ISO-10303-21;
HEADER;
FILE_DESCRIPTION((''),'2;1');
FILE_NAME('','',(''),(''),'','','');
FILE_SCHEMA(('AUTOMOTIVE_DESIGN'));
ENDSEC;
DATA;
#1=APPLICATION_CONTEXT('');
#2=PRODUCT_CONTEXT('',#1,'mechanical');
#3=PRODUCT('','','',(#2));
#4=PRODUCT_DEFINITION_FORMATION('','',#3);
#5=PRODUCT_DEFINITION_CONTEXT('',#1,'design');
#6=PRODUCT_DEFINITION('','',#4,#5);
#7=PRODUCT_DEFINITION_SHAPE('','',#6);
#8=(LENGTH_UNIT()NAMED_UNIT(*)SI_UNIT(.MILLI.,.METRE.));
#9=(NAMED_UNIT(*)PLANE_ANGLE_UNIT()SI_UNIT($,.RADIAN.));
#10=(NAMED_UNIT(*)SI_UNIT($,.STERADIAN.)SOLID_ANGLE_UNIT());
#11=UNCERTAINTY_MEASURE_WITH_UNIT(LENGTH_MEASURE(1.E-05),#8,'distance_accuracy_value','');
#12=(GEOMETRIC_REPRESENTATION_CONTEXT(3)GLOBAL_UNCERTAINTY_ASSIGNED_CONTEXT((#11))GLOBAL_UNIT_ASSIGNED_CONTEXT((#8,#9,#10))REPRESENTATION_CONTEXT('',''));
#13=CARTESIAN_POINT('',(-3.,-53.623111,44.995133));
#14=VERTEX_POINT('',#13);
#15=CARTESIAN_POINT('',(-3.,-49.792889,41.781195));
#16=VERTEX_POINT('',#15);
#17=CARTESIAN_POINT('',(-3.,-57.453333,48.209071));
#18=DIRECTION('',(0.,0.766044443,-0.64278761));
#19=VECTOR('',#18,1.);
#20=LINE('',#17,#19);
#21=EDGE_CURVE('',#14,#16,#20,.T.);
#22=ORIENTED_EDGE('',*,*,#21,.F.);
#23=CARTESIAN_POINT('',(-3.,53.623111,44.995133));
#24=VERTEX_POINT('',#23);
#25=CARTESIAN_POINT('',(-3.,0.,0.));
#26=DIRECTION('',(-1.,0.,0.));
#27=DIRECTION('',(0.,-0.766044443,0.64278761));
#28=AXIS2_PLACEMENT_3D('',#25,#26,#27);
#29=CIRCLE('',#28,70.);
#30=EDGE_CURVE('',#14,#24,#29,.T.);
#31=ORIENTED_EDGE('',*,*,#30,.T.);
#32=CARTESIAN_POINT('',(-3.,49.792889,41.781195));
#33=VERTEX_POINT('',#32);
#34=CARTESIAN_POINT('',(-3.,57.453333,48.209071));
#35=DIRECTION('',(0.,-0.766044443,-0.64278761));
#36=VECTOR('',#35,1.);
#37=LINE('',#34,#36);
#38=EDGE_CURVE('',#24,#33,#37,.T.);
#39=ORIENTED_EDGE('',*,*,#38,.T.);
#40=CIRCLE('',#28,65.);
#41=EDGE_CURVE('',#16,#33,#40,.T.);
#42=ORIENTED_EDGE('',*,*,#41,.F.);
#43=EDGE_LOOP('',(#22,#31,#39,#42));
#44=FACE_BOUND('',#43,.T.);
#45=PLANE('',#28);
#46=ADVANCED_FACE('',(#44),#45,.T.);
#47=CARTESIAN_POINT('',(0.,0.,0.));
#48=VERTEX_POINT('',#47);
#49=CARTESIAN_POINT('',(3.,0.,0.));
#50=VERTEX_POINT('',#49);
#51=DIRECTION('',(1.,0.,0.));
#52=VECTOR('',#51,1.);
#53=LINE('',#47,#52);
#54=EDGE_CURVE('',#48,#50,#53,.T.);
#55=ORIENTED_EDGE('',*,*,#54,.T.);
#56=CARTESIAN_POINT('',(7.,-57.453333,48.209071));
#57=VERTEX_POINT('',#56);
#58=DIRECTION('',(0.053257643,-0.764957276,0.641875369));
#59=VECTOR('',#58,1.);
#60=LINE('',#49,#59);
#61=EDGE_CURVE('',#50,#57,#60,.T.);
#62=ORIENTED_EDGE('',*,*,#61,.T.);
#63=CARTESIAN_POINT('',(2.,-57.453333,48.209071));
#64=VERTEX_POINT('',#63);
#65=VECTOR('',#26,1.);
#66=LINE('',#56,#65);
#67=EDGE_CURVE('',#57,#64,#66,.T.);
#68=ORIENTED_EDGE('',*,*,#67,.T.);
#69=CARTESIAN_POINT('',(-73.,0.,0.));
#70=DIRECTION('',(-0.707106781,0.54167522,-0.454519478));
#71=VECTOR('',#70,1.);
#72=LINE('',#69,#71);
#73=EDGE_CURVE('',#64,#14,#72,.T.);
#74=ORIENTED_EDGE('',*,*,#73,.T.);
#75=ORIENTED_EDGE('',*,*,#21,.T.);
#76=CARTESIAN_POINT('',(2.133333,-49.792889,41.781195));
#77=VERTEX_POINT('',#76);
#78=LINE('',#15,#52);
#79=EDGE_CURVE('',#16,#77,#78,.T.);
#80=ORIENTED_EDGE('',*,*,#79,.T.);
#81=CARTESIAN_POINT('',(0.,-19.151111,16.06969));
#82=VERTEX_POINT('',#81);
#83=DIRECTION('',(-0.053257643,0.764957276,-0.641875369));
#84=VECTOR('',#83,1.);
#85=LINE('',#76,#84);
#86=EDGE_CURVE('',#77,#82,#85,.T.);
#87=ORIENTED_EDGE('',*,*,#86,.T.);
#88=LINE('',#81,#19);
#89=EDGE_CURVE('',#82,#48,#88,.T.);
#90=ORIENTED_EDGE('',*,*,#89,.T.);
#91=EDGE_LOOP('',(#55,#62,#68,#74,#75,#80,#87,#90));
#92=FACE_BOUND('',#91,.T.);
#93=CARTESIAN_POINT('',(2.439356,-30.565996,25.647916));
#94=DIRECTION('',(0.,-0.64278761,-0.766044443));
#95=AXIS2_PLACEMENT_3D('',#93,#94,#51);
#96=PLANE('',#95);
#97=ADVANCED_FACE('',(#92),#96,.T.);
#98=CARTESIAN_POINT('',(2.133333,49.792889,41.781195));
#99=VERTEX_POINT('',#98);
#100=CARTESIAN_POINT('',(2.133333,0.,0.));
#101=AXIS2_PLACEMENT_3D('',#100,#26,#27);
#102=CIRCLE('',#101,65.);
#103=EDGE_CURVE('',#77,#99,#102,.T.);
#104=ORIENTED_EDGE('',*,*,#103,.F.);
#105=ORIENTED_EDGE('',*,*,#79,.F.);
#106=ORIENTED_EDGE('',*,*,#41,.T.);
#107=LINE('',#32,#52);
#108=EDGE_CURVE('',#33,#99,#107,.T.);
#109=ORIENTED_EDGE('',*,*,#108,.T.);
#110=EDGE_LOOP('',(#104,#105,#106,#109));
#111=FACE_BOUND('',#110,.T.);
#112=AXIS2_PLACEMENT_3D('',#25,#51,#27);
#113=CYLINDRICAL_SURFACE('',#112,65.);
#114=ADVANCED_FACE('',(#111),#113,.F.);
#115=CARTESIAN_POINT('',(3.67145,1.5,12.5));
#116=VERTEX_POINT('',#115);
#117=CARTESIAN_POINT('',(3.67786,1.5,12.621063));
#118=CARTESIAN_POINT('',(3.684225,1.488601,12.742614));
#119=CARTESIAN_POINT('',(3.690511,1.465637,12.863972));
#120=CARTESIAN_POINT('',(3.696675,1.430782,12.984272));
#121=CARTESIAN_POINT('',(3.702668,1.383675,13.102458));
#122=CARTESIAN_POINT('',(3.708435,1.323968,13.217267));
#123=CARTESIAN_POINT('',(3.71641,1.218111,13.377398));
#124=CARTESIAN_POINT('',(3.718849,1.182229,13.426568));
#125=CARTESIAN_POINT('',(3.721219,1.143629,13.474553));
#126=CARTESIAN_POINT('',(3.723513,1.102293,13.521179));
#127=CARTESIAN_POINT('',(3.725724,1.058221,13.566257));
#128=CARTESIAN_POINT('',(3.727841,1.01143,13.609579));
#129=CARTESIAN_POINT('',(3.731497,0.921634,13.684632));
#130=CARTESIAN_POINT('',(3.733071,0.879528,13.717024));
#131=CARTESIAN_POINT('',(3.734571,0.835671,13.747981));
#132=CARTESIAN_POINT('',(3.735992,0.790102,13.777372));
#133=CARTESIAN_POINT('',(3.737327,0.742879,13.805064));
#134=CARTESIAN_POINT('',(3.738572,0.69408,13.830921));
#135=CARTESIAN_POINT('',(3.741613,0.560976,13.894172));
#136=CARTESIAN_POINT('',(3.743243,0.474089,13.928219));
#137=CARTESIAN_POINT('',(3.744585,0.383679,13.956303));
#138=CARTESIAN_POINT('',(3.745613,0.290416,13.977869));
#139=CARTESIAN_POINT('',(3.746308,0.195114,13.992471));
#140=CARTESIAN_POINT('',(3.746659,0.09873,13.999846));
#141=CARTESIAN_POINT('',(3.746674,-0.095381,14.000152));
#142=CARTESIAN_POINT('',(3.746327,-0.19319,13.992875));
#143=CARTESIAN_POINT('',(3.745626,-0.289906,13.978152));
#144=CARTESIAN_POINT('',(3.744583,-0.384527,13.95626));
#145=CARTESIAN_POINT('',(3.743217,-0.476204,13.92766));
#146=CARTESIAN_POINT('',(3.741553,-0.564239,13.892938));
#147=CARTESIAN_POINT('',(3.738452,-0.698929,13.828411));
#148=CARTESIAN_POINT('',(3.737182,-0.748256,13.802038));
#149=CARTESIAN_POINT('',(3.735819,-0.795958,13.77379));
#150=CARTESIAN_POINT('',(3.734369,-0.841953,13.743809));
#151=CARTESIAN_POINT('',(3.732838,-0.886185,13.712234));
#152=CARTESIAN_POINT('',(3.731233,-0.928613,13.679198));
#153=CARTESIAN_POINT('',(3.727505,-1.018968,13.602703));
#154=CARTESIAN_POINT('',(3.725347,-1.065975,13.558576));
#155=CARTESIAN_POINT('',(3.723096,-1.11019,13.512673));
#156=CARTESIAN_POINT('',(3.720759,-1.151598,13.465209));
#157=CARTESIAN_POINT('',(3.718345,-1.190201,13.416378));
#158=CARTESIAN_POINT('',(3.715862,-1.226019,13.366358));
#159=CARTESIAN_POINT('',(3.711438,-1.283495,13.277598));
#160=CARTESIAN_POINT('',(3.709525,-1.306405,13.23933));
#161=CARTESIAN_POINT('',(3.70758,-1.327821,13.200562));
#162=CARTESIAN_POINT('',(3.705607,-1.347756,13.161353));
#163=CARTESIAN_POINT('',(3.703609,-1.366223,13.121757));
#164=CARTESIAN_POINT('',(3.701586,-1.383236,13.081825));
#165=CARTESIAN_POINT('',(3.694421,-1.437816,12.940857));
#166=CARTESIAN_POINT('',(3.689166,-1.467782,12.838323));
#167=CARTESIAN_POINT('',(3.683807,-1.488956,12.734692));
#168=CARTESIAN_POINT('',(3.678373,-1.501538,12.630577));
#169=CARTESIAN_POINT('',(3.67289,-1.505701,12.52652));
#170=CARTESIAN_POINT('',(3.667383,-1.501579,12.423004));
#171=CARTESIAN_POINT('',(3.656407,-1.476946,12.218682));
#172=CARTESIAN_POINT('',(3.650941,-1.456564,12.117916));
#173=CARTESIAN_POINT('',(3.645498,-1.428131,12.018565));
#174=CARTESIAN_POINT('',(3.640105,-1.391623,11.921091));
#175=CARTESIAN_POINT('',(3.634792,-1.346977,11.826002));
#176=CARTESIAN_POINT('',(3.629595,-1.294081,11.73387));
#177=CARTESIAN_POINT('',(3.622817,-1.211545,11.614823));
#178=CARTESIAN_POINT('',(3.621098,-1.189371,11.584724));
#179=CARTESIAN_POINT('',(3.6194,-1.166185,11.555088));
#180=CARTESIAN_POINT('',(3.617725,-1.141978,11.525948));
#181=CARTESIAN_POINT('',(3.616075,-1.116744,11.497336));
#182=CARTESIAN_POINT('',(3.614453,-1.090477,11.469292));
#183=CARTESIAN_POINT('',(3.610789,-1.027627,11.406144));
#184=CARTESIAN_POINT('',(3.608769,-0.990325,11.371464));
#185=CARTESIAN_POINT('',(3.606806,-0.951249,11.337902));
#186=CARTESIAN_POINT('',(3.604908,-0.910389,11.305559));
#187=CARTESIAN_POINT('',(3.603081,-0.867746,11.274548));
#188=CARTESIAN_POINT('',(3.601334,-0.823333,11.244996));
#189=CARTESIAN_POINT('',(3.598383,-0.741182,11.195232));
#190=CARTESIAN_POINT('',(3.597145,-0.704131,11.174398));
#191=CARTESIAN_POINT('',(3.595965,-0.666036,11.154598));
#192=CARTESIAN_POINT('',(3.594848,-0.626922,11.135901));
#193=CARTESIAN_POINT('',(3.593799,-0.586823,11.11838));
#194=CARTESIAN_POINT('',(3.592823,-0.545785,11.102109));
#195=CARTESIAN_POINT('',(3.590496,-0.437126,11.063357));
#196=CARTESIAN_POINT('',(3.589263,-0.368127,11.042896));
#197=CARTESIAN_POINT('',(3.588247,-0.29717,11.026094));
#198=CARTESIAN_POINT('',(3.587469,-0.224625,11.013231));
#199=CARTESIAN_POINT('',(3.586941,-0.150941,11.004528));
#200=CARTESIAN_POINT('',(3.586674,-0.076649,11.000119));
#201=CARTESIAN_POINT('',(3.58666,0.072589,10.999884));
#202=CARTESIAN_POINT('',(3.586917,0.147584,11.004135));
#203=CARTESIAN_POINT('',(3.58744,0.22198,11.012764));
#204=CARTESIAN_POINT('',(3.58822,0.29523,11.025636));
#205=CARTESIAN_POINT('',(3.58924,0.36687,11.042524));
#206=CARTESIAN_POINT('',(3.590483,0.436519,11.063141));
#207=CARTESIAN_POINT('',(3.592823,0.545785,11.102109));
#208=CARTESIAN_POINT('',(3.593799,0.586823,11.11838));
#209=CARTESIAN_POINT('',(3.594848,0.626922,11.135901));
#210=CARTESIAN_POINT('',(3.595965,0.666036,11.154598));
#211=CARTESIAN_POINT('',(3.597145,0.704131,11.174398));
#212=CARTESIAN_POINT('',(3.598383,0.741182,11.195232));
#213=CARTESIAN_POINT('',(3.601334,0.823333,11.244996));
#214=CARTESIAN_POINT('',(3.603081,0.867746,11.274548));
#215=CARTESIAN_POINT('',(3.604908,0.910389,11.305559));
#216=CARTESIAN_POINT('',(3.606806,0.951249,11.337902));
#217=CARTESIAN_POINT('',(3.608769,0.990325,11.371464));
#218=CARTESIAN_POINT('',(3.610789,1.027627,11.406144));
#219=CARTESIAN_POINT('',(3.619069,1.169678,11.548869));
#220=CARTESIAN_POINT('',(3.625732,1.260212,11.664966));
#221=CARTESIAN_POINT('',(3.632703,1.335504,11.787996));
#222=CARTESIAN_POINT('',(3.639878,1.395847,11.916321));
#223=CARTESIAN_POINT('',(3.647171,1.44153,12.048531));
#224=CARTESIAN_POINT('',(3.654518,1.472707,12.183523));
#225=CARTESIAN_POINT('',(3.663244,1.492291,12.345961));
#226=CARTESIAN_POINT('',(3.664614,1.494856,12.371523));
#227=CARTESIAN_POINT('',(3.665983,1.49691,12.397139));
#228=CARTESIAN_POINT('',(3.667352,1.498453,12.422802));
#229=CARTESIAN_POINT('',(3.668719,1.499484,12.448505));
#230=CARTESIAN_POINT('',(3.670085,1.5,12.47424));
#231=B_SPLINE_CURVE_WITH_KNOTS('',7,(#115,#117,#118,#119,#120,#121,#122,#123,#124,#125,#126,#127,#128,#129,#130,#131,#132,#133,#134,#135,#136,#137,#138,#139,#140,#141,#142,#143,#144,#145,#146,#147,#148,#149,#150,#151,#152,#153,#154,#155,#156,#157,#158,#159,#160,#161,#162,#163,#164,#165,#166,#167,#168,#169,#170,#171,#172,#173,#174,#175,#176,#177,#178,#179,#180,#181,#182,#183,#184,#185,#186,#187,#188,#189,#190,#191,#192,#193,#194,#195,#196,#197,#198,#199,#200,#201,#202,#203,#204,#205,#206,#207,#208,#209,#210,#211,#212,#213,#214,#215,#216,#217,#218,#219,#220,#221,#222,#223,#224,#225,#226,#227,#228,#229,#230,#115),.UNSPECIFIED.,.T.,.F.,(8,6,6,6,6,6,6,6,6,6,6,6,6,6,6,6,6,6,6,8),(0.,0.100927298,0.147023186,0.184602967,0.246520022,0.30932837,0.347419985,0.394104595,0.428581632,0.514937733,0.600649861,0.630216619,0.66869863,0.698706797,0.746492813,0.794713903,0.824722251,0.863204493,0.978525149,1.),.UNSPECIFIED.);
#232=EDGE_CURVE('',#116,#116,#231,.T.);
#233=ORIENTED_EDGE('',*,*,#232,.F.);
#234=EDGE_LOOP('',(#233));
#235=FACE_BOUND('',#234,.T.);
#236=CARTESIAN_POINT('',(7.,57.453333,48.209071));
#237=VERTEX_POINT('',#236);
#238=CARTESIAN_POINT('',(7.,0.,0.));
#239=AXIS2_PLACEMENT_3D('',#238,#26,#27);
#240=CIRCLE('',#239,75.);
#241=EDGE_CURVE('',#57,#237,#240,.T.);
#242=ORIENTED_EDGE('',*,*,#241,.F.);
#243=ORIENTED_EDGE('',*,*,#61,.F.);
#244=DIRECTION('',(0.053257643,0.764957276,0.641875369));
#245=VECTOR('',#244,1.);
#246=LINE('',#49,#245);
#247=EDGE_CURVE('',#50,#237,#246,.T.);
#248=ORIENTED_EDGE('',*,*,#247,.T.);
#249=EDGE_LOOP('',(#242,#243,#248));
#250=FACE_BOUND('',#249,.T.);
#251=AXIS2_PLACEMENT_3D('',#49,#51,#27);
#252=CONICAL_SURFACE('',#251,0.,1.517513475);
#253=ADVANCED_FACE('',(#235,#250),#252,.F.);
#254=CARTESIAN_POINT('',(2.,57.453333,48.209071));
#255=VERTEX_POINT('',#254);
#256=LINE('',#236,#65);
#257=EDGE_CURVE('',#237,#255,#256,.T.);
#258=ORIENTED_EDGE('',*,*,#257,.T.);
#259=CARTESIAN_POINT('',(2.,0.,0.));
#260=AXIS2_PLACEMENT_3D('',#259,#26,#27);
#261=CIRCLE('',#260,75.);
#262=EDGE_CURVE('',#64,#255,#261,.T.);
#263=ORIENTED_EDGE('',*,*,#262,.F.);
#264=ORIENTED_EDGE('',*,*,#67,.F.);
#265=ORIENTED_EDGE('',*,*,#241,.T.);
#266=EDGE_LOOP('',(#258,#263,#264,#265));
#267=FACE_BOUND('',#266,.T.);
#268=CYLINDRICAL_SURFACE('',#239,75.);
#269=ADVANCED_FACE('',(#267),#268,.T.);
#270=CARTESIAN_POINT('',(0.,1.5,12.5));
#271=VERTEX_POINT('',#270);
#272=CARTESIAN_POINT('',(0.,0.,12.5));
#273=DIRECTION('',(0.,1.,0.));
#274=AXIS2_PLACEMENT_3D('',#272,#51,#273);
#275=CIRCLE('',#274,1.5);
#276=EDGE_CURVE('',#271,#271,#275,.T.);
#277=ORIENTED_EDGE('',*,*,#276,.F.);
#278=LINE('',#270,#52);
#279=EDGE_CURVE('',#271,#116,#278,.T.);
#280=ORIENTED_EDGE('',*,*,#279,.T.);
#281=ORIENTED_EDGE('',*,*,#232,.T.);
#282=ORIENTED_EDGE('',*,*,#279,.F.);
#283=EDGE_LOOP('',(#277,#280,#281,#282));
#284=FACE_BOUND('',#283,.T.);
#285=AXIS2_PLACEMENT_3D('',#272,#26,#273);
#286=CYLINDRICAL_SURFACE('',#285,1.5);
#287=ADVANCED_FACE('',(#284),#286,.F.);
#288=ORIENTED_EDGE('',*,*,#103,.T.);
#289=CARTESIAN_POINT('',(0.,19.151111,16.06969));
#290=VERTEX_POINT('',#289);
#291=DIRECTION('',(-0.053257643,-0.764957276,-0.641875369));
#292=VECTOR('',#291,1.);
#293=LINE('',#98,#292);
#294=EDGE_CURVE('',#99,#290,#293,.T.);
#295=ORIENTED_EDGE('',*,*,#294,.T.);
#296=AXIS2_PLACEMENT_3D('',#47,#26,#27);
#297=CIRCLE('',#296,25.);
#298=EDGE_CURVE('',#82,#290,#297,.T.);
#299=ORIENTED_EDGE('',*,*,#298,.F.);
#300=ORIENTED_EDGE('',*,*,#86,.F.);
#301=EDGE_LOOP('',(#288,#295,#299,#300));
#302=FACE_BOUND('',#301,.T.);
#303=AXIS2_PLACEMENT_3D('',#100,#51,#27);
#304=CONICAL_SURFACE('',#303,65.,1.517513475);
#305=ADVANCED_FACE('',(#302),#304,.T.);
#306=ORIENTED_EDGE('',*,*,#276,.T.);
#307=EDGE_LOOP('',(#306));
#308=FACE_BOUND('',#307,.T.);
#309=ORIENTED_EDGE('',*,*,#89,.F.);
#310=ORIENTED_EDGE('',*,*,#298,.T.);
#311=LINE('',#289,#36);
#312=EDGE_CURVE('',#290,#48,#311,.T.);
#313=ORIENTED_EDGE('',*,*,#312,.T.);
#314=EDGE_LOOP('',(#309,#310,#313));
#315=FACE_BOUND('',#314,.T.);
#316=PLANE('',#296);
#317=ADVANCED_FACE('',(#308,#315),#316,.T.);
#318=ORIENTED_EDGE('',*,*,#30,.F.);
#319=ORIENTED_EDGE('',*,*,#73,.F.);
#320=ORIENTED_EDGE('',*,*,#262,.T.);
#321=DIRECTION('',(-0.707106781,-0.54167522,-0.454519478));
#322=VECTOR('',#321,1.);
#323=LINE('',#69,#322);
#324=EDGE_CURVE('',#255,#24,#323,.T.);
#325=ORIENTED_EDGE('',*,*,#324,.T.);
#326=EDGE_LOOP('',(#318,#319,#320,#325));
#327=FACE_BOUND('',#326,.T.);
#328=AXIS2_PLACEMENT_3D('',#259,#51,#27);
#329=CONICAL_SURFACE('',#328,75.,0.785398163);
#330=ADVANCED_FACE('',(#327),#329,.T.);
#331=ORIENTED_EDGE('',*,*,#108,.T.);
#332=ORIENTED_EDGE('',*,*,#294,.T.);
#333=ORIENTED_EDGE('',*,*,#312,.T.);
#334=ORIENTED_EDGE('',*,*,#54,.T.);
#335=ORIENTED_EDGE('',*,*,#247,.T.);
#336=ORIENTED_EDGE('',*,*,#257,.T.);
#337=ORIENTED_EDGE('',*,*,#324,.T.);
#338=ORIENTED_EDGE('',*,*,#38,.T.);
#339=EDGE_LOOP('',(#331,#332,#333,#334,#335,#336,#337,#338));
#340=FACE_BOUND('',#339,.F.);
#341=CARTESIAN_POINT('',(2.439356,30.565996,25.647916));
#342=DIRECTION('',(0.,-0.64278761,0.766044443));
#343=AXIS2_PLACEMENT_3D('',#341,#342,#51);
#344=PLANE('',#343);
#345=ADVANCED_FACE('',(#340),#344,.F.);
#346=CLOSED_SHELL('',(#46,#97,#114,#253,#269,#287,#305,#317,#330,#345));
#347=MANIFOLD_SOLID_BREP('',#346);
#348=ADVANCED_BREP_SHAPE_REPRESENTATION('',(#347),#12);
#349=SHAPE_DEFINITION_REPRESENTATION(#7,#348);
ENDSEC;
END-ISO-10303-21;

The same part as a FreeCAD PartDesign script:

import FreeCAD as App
import Part
import Sketcher
from FreeCAD import Vector


def edges_at(feature, points):
    """Names of the edges that pass closest to the given points."""
    edges = feature.Shape.Edges
    near = lambda p: min(range(len(edges)), key=lambda i: edges[i].distToShape(Part.Vertex(*p))[0])
    return sorted({f"Edge{near(p) + 1}" for p in points})


def add_polygon(sketch, points):
    """Adds a closed chain of lines whose ends are joined by coincident constraints."""
    first, n = sketch.GeometryCount, len(points)
    for a, b in zip(points, points[1:] + points[:1]):
        sketch.addGeometry(Part.LineSegment(App.Vector(*a, 0), App.Vector(*b, 0)), False)
    for i in range(n):
        sketch.addConstraint(Sketcher.Constraint("Coincident", first + i, 2, first + (i + 1) % n, 1))

doc = App.newDocument("Part")
body = doc.addObject("PartDesign::Body", "Body")

sketch1 = doc.addObject("Sketcher::SketchObject", "Sketch")
body.addObject(sketch1)
sketch1.Placement = App.Placement(Vector(0, 0, 0), App.Rotation(Vector(1, 0, 0), Vector(0, -0.766044443, 0.64278761), Vector(0, -0.64278761, -0.766044443), "ZXY"))
add_polygon(sketch1, [(3, 0), (7, 75), (-3, 75), (-3, 65), (2.1, 65), (0, 25), (0, 0)])
sketch1.addConstraint(Sketcher.Constraint("Horizontal", 1))
sketch1.addConstraint(Sketcher.Constraint("Vertical", 2))
sketch1.addConstraint(Sketcher.Constraint("Horizontal", 3))
sketch1.addConstraint(Sketcher.Constraint("Vertical", 5))
sketch1.addConstraint(Sketcher.Constraint("Horizontal", 6))
sketch1.addConstraint(Sketcher.Constraint("Coincident", 5, 2, -1, 1))
sketch1.addConstraint(Sketcher.Constraint("Parallel", 0, 4))
sketch1.addConstraint(Sketcher.Constraint("Equal", 1, 2))
sketch1.addConstraint(Sketcher.Constraint("DistanceX", 1, 2, 1, 1, 10.0))
sketch1.addConstraint(Sketcher.Constraint("DistanceX", 6, 1, 6, 2, 3.0))
sketch1.addConstraint(Sketcher.Constraint("DistanceY", 5, 2, 5, 1, 25.0))
sketch1.addConstraint(Sketcher.Constraint("DistanceX", -1, 1, 0, 2, 7.0))
sketch1.addConstraint(Sketcher.Constraint("DistanceY", -1, 1, 0, 2, 75.0))
revolution = doc.addObject("PartDesign::Revolution", "Revolution")
body.addObject(revolution)
revolution.Profile = sketch1
revolution.ReferenceAxis = (sketch1, ["H_Axis"])
revolution.Angle = 100
revolution.Reversed = True
doc.recompute()

chamfer = doc.addObject("PartDesign::Chamfer", "Chamfer")
body.addObject(chamfer)
chamfer.Base = (revolution, edges_at(revolution, [(-3, 0, 75)]))
chamfer.Size = 5

sketch2 = doc.addObject("Sketcher::SketchObject", "Sketch001")
body.addObject(sketch2)
sketch2.AttachmentSupport = (doc.YZ_Plane, [""])
sketch2.MapMode = "FlatFace"
sketch2.addGeometry(Part.Circle(Vector(0, 12.5, 0), Vector(0, 0, 1), 1.5), False)
sketch2.addConstraint(Sketcher.Constraint("PointOnObject", 0, 3, -2))
sketch2.addConstraint(Sketcher.Constraint("Diameter", 0, 3.0))
sketch2.addConstraint(Sketcher.Constraint("DistanceY", -1, 1, 0, 3, 12.5))
pocket1 = doc.addObject("PartDesign::Pocket", "Pocket")
body.addObject(pocket1)
pocket1.Profile = sketch2
pocket1.Type = "ThroughAll"
pocket1.Reversed = True

doc.recompute()
